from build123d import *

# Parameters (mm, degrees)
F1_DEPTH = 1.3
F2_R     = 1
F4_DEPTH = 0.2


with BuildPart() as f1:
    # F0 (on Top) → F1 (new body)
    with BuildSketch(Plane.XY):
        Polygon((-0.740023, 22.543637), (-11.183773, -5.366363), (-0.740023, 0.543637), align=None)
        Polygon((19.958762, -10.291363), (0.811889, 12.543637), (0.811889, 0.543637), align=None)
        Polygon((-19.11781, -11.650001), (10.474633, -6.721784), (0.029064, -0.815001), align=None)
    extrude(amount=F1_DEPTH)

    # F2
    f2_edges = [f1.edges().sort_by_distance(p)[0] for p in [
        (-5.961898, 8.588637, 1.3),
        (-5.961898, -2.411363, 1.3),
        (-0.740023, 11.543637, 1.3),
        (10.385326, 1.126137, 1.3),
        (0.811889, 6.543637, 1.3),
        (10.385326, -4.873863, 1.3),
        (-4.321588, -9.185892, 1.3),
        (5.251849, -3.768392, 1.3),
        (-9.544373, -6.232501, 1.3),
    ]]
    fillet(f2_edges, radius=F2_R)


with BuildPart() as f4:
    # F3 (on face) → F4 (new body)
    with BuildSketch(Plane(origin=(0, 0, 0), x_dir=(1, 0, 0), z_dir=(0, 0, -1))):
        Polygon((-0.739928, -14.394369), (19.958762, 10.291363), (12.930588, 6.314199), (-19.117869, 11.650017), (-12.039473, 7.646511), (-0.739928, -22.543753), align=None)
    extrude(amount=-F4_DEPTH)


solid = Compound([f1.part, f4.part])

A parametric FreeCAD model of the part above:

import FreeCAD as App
import Part
import Sketcher
from FreeCAD import Vector


def edges_at(feature, points):
    """Names of the edges that pass closest to the given points."""
    edges = feature.Shape.Edges
    near = lambda p: min(range(len(edges)), key=lambda i: edges[i].distToShape(Part.Vertex(*p))[0])
    return sorted({f"Edge{near(p) + 1}" for p in points})


def add_polygon(sketch, points):
    """Adds a closed chain of lines whose ends are joined by coincident constraints."""
    first, n = sketch.GeometryCount, len(points)
    for a, b in zip(points, points[1:] + points[:1]):
        sketch.addGeometry(Part.LineSegment(App.Vector(*a, 0), App.Vector(*b, 0)), False)
    for i in range(n):
        sketch.addConstraint(Sketcher.Constraint("Coincident", first + i, 2, first + (i + 1) % n, 1))

doc = App.newDocument("Part")
body = doc.addObject("PartDesign::Body", "Body")
body.AllowCompound = True

# Sketch on XY plane
sketch1 = body.newObject("Sketcher::SketchObject", "Sketch")
sketch1.AttachmentSupport = (doc.getObject("XY_Plane"), [""])
sketch1.MapMode = "FlatFace"
add_polygon(sketch1, [(-0.740023, 22.543637), (-11.183773, -5.366363), (-0.740023, 0.543637)])  # lines 0-2
add_polygon(sketch1, [(19.958762, -10.291363), (0.811889, 12.543637), (0.811889, 0.543637)])  # lines 3-5
add_polygon(sketch1, [(-19.11781, -11.650001), (10.474633, -6.721784), (0.029064, -0.815001)])  # lines 6-8
sketch1.addConstraint([
    Sketcher.Constraint("Vertical", 2),
    Sketcher.Constraint("Vertical", 4),
    Sketcher.Constraint("Parallel", 1, 8),
    Sketcher.Constraint("Horizontal", 1, 2, 4, 2),
    Sketcher.Constraint("Equal", 0, 3),
    Sketcher.Constraint("Equal", 1, 7),
    Sketcher.Constraint("Equal", 5, 8),
    Sketcher.Constraint("DistanceY", 2, 1, 2, 2, 22.0),
    Sketcher.Constraint("DistanceY", 4, 2, 4, 1, 12.0),
    Sketcher.Constraint("Distance", 1, 12.000001),
    Sketcher.Constraint("Distance", 5, 21.999999),
    Sketcher.Constraint("Distance", 6, 30.0),
    Sketcher.Constraint("Distance", 0, 29.8),
    Sketcher.Constraint("DistanceY", 8, 2, -1, 1, 11.650001),
    Sketcher.Constraint("DistanceX", 8, 2, 4, 2, 19.929699),
    Sketcher.Constraint("DistanceX", -1, 1, 3, 2, 0.811889),
    Sketcher.Constraint("DistanceY", 5, 2, 6, 2, 3.569579),
    Sketcher.Constraint("DistanceX", 0, 2, -1, 1, 11.183773),
])
pad1 = body.newObject("PartDesign::Pad", "Pad")
pad1.Profile = sketch1
pad1.Length = 1.3
doc.recompute()

fillet = body.newObject("PartDesign::Fillet", "Fillet")
fillet.Base = (pad1, edges_at(pad1, [
    (-5.962, 8.589, 1.3),
    (-5.962, -2.411, 1.3),
    (-0.74, 11.544, 1.3),
    (10.385, 1.126, 1.3),
    (0.812, 6.544, 1.3),
    (10.385, -4.874, 1.3),
    (-4.322, -9.186, 1.3),
    (5.252, -3.768, 1.3),
    (-9.544, -6.233, 1.3),
]))
fillet.Radius = 1
body2 = doc.addObject("PartDesign::Body", "Body001")

# Sketch on XY plane
sketch2 = body2.newObject("Sketcher::SketchObject", "Sketch001")
sketch2.AttachmentSupport = (doc.getObject("XY_Plane001"), [""])
sketch2.MapMode = "FlatFace"
add_polygon(sketch2, [(-0.739928, 14.394369), (19.958762, -10.291363), (12.930588, -6.314199), (-19.117869, -11.650017), (-12.039473, -7.646511), (-0.739928, 22.543753)])  # lines 0-5
sketch2.addConstraint([
    Sketcher.Constraint("Vertical", 5),
    Sketcher.Constraint("DistanceY", 1, 2, -1, 1, 6.314199),
    Sketcher.Constraint("Distance", 0, 32.215231),
    Sketcher.Constraint("Distance", 1, 8.075461),
    Sketcher.Constraint("DistanceY", 5, 2, 5, 1, 8.149384),
    Sketcher.Constraint("DistanceX", -1, 1, 0, 2, 19.958762),
    Sketcher.Constraint("DistanceX", 2, 2, -1, 1, 19.117869),
    Sketcher.Constraint("DistanceY", 3, 2, -1, 1, 7.646511),
    Sketcher.Constraint("DistanceX", 4, 2, -1, 1, 0.739928),
    Sketcher.Constraint("DistanceY", -1, 1, 5, 2, 14.394369),
    Sketcher.Constraint("DistanceX", 3, 2, 1, 2, 24.970061),
    Sketcher.Constraint("DistanceY", 2, 2, 4, 2, 34.19377),
])
pad2 = body2.newObject("PartDesign::Pad", "Pad001")
pad2.Profile = sketch2
pad2.Length = 0.2

doc.recompute()
